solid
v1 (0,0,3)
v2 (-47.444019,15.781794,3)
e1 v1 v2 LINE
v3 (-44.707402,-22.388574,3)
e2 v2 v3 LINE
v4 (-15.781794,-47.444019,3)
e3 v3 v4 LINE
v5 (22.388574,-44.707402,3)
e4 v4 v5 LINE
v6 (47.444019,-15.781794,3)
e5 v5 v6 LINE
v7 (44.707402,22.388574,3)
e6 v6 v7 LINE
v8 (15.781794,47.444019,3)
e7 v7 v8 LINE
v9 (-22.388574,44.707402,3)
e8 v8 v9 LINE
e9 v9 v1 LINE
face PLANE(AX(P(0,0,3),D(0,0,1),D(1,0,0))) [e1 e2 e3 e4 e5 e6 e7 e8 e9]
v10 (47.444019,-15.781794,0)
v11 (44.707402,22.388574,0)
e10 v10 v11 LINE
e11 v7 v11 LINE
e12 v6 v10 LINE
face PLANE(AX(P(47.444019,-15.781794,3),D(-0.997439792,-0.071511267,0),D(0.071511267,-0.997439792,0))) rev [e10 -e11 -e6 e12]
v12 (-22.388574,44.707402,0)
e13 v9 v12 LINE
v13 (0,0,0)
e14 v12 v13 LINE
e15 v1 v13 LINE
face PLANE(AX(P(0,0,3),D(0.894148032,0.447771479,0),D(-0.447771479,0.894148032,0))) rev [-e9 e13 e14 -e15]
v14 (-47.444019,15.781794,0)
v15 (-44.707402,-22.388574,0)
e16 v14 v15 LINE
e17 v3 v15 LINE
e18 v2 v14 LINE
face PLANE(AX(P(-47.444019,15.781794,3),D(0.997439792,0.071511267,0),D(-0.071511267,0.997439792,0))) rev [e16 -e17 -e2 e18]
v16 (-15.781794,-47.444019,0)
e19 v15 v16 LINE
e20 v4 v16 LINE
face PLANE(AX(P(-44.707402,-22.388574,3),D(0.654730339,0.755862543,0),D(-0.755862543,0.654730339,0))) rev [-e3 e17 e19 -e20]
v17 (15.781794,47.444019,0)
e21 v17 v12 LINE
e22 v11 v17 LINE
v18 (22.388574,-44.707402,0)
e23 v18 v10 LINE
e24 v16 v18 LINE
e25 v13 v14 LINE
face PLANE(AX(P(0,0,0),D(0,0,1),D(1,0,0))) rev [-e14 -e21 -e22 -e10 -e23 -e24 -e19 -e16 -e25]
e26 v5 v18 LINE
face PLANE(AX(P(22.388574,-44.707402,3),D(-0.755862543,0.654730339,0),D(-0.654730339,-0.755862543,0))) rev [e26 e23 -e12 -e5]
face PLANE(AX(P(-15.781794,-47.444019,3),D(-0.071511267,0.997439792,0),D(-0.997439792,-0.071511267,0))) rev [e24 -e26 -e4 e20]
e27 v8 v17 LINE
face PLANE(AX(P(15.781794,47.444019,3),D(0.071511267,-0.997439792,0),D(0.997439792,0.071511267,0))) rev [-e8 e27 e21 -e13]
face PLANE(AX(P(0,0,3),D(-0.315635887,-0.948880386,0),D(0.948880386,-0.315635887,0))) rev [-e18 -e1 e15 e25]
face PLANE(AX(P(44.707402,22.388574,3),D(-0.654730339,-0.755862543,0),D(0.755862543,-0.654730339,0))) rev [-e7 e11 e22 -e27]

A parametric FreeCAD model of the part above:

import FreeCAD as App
import Part
import Sketcher

V = App.Vector
Q = App.Units.Quantity


def add_polygon(sketch, points):
    """Adds a closed chain of lines whose ends are joined by coincident constraints."""
    first, n = sketch.GeometryCount, len(points)
    for a, b in zip(points, points[1:] + points[:1]):
        sketch.addGeometry(Part.LineSegment(App.Vector(*a, 0), App.Vector(*b, 0)), False)
    for i in range(n):
        sketch.addConstraint(Sketcher.Constraint("Coincident", first + i, 2, first + (i + 1) % n, 1))

doc = App.newDocument("Part")
body = doc.addObject("PartDesign::Body", "Body")

# Sketch on XY plane
sketch1 = doc.addObject("Sketcher::SketchObject", "Sketch")
body.addObject(sketch1)
sketch1.AttachmentSupport = (doc.XY_Plane, [""])
sketch1.MapMode = "FlatFace"
add_polygon(sketch1, [(-22, 45), (0, 0), (-47, 16), (-45, -22), (-16, -47), (22, -45), (47, -16), (45, 22), (16, 47)])  # lines 0-8
sketch1.addConstraint([
    Sketcher.Constraint("Coincident", 0, 2, -1, 1),
    Sketcher.Constraint("Symmetric", 1, 2, 5, 2, -1, 1),
    Sketcher.Constraint("Symmetric", 2, 2, 6, 2, -1, 1),
    Sketcher.Constraint("Symmetric", 3, 2, 7, 2, -1, 1),
    Sketcher.Constraint("Symmetric", 4, 2, 8, 2, -1, 1),
    Sketcher.Constraint("Perpendicular", 2, 4),
    Sketcher.Constraint("Perpendicular", 3, 5),
    Sketcher.Constraint("Equal", 0, 1),
    Sketcher.Constraint("Equal", 2, 3),
    Sketcher.Constraint("Equal", 3, 4),
    Sketcher.Constraint("Equal", 4, 5),
    Sketcher.Constraint("Distance", 0, Q("50 mm")),
    Sketcher.Constraint("DistanceX", 2, 2, -1, 1, Q("44.707402 mm")),
])
pad1 = doc.addObject("PartDesign::Pad", "Pad")
body.addObject(pad1)
pad1.Profile = sketch1
pad1.Length = 3

doc.recompute()
